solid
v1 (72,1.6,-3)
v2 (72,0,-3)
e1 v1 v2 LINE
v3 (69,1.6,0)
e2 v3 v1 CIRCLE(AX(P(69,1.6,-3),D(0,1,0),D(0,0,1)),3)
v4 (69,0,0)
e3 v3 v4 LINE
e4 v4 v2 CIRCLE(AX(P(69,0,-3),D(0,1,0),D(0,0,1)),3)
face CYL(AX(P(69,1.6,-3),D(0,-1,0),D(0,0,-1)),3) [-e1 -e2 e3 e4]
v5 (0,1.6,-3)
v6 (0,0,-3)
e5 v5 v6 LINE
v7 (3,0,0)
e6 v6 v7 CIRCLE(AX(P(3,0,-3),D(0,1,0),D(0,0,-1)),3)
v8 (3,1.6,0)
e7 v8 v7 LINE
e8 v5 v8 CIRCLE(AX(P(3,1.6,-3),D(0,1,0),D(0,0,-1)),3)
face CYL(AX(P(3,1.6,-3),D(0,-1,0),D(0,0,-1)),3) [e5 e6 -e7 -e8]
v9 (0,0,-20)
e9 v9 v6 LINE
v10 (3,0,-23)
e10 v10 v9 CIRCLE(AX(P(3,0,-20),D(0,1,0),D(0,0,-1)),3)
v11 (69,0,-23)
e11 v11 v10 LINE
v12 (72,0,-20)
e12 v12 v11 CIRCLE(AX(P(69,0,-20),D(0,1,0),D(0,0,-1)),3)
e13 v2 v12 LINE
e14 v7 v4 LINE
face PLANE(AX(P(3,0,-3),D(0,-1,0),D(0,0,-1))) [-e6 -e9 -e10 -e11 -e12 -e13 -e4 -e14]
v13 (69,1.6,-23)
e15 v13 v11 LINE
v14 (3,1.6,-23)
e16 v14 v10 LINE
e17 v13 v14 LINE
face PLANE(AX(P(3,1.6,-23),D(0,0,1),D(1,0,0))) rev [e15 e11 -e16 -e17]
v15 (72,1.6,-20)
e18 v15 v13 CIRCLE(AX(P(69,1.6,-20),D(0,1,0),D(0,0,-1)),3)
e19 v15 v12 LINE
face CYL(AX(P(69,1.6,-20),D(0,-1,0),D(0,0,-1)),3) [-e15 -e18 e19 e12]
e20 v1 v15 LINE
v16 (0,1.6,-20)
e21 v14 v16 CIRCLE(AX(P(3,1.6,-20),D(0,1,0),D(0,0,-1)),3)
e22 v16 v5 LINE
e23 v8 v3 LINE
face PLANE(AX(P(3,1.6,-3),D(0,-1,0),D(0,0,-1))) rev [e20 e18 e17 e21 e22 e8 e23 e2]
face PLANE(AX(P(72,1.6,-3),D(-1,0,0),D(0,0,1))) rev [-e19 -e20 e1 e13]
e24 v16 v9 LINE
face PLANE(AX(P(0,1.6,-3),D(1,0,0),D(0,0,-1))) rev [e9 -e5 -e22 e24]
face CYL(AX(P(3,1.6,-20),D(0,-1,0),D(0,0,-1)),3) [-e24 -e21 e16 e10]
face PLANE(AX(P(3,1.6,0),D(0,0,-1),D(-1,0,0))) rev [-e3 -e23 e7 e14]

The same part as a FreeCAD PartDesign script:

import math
import FreeCAD as App
import Part
import Sketcher
from FreeCAD import Vector
Q = App.Units.Quantity

doc = App.newDocument("Part")
body = doc.addObject("PartDesign::Body", "Body")

# Sketch on XZ plane
sketch1 = body.newObject("Sketcher::SketchObject", "Sketch")
sketch1.AttachmentSupport = (doc.getObject("XZ_Plane"), [""])
sketch1.MapMode = "FlatFace"
sketch1.addGeometry([
    Part.LineSegment(Vector(3, 0, 0), Vector(69, 0, 0)),  # 0
    Part.ArcOfCircle(Part.Circle(Vector(69, -3, 0), Vector(0, 0, 1), 3), math.radians(0), math.radians(90)),  # 1
    Part.LineSegment(Vector(72, -3, 0), Vector(72, -20, 0)),  # 2
    Part.ArcOfCircle(Part.Circle(Vector(69, -20, 0), Vector(0, 0, 1), 3), math.radians(-90), math.radians(0)),  # 3
    Part.LineSegment(Vector(69, -23, 0), Vector(3, -23, 0)),  # 4
    Part.ArcOfCircle(Part.Circle(Vector(3, -20, 0), Vector(0, 0, 1), 3), math.radians(180), math.radians(270)),  # 5
    Part.LineSegment(Vector(0, -20, 0), Vector(0, -3, 0)),  # 6
    Part.ArcOfCircle(Part.Circle(Vector(3, -3, 0), Vector(0, 0, 1), 3), math.radians(90), math.radians(180)),  # 7
], False)
sketch1.addConstraint([
    Sketcher.Constraint("Tangent", 0, 2, 1, 2),
    Sketcher.Constraint("Tangent", 1, 1, 2, 1),
    Sketcher.Constraint("Tangent", 2, 2, 3, 2),
    Sketcher.Constraint("Tangent", 3, 1, 4, 1),
    Sketcher.Constraint("Tangent", 4, 2, 5, 2),
    Sketcher.Constraint("Tangent", 5, 1, 6, 1),
    Sketcher.Constraint("Tangent", 6, 2, 7, 2),
    Sketcher.Constraint("Tangent", 7, 1, 0, 1),
    Sketcher.Constraint("Horizontal", 0),
    Sketcher.Constraint("Vertical", 2),
    Sketcher.Constraint("Horizontal", 4),
    Sketcher.Constraint("Vertical", 6),
    Sketcher.Constraint("Equal", 1, 3),
    Sketcher.Constraint("Equal", 3, 5),
    Sketcher.Constraint("Equal", 5, 7),
    Sketcher.Constraint("PointOnObject", 0, 2, -1),
    Sketcher.Constraint("PointOnObject", 5, 1, -2),
    Sketcher.Constraint("Radius", 1, Q("3 mm")),
    Sketcher.Constraint("DistanceX", 0, 1, 0, 2, Q("66 mm")),
    Sketcher.Constraint("DistanceY", 2, 2, 2, 1, Q("17 mm")),
])
pad1 = body.newObject("PartDesign::Pad", "Pad")
pad1.Profile = sketch1
pad1.Length = 1.6
pad1.Reversed = True

doc.recompute()
